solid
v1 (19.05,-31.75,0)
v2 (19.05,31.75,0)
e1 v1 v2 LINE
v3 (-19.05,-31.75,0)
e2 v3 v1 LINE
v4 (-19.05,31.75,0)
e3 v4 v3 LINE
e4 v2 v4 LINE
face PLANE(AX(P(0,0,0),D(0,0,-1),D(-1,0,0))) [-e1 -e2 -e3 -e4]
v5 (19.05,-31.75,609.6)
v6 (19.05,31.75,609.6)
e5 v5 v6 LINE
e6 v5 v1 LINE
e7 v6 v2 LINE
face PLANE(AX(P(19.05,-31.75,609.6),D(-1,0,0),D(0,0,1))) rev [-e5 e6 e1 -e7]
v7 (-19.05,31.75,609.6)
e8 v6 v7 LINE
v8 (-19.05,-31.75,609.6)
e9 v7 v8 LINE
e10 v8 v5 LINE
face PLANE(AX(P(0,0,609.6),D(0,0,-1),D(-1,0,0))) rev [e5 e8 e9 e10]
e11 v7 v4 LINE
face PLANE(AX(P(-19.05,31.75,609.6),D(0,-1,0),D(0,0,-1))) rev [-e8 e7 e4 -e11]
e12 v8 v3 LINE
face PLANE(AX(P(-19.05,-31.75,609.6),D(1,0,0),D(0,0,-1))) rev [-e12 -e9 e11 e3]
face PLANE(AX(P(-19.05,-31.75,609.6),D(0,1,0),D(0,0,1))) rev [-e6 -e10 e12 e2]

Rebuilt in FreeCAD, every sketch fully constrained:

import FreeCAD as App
import Part
import Sketcher
Q = App.Units.Quantity

doc = App.newDocument("Part")
body = doc.addObject("PartDesign::Body", "Body")

# Sketch on XY plane
sketch1 = body.newObject("Sketcher::SketchObject", "Sketch")
sketch1.AttachmentSupport = (doc.getObject("XY_Plane"), [""])
sketch1.MapMode = "FlatFace"
sketch1.addGeometry(Part.LineSegment(App.Vector(-19, 32, 0), App.Vector(-19, -32, 0)), False)
sketch1.addGeometry(Part.LineSegment(App.Vector(-19, -32, 0), App.Vector(19, -32, 0)), False)
sketch1.addGeometry(Part.LineSegment(App.Vector(19, -32, 0), App.Vector(19, 32, 0)), False)
sketch1.addGeometry(Part.LineSegment(App.Vector(19, 32, 0), App.Vector(-19, 32, 0)), False)
sketch1.addConstraint(Sketcher.Constraint("Coincident", 0, 2, 1, 1))
sketch1.addConstraint(Sketcher.Constraint("Coincident", 1, 2, 2, 1))
sketch1.addConstraint(Sketcher.Constraint("Coincident", 2, 2, 3, 1))
sketch1.addConstraint(Sketcher.Constraint("Coincident", 3, 2, 0, 1))
sketch1.addConstraint(Sketcher.Constraint("Vertical", 0))
sketch1.addConstraint(Sketcher.Constraint("Horizontal", 1))
sketch1.addConstraint(Sketcher.Constraint("Vertical", 2))
sketch1.addConstraint(Sketcher.Constraint("Horizontal", 3))
sketch1.addConstraint(Sketcher.Constraint("Symmetric", 0, 2, 2, 2, -1, 1))
sketch1.addConstraint(Sketcher.Constraint("DistanceX", 1, 1, 1, 2, Q("1.5 in")))
sketch1.addConstraint(Sketcher.Constraint("DistanceY", 0, 2, 0, 1, Q("2.5 in")))
pad1 = body.newObject("PartDesign::Pad", "Pad")
pad1.Profile = sketch1
pad1.Length = Q("24 in")

doc.recompute()
